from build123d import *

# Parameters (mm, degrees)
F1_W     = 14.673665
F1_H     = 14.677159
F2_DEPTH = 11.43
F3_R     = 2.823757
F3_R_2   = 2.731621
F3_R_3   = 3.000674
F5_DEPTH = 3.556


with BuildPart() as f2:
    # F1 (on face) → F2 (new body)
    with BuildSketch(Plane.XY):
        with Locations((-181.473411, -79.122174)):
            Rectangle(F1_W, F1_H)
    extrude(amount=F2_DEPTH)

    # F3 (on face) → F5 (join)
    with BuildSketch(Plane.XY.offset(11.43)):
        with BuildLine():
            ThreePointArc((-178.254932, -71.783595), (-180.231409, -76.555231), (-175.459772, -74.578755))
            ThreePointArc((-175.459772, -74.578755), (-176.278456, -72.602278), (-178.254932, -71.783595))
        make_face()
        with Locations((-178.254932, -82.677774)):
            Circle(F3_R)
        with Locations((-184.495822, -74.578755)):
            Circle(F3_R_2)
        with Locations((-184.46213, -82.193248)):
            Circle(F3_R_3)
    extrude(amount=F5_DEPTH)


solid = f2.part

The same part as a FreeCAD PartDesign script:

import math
import FreeCAD as App
import Part
import Sketcher

V = App.Vector
Q = App.Units.Quantity


def add_polygon(sketch, points):
    """Adds a closed chain of lines whose ends are joined by coincident constraints."""
    first, n = sketch.GeometryCount, len(points)
    for a, b in zip(points, points[1:] + points[:1]):
        sketch.addGeometry(Part.LineSegment(App.Vector(*a, 0), App.Vector(*b, 0)), False)
    for i in range(n):
        sketch.addConstraint(Sketcher.Constraint("Coincident", first + i, 2, first + (i + 1) % n, 1))

doc = App.newDocument("Part")
params = doc.addObject("Spreadsheet::Sheet", "Params")
for row, (alias, value) in enumerate([
    ("pad1_length", "0.45 in"),
    ("pad2_length", "0.14 in"),
], start=1):
    params.set(f"A{row}", alias)
    params.set(f"B{row}", "=" + value)
    params.setAlias(f"B{row}", alias)

body = doc.addObject("PartDesign::Body", "Body")

sketch1 = body.newObject("Sketcher::SketchObject", "Sketch")
sketch1.AttachmentSupport = (doc.getObject("XY_Plane"), [""])
sketch1.MapMode = "FlatFace"
add_polygon(sketch1, [(-189, -72), (-189, -86), (-174, -86), (-174, -72)])
sketch1.addConstraint([
    Sketcher.Constraint("Vertical", 0),
    Sketcher.Constraint("Horizontal", 1),
    Sketcher.Constraint("Vertical", 2),
    Sketcher.Constraint("Horizontal", 3),
    Sketcher.Constraint("DistanceY", 0, 2, 0, 1, Q("14.677159 mm")),
    Sketcher.Constraint("DistanceX", 1, 1, 1, 2, Q("14.673665 mm")),
    Sketcher.Constraint("DistanceX", 1, 2, -1, 1, Q("174.136579 mm")),
    Sketcher.Constraint("DistanceY", 0, 2, -1, 1, Q("86.460753 mm")),
])
pad1 = body.newObject("PartDesign::Pad", "Pad")
pad1.Profile = sketch1
pad1.setExpression("Length", "Params.pad1_length")

sketch2 = body.newObject("Sketcher::SketchObject", "Sketch001")
sketch2.AttachmentSupport = (doc.getObject("XY_Plane"), [""])
sketch2.MapMode = "FlatFace"
sketch2.AttachmentOffset = App.Placement(V(0, 0, 0.45 * 25.4), App.Rotation())
sketch2.addGeometry([
    Part.ArcOfCircle(Part.Circle(V(-178.3, -74.6, 0), V(0, 0, 1), 2.8), math.radians(90), math.radians(360)),
    Part.ArcOfCircle(Part.Circle(V(-178.3, -74.6, 0), V(0, 0, 1), 2.8), math.radians(0), math.radians(90)),
    Part.Circle(V(-178.3, -82.7, 0), V(0, 0, 1), 2.8),
    Part.Circle(V(-184.5, -74.6, 0), V(0, 0, 1), 2.7),
    Part.Circle(V(-184.5, -82.2, 0), V(0, 0, 1), 3),
], False)
sketch2.addConstraint([
    Sketcher.Constraint("Tangent", 0, 1, 1, 2),
    Sketcher.Constraint("Coincident", 1, 1, 0, 2),
    Sketcher.Constraint("Horizontal", 1, 3, 3, 3),
    Sketcher.Constraint("Horizontal", 3, 3, 1, 1),
    Sketcher.Constraint("Vertical", 1, 3, 2, 3),
    Sketcher.Constraint("Vertical", 2, 3, 0, 1),
    Sketcher.Constraint("Radius", 0, Q("2.79516 mm")),
    Sketcher.Constraint("Diameter", 2, Q("5.647514 mm")),
    Sketcher.Constraint("Diameter", 3, Q("5.463242 mm")),
    Sketcher.Constraint("Diameter", 4, Q("6.001348 mm")),
    Sketcher.Constraint("DistanceX", 4, 3, 2, 3, Q("6.207198 mm")),
    Sketcher.Constraint("DistanceX", 0, 3, -1, 1, Q("178.254932 mm")),
    Sketcher.Constraint("DistanceX", 3, 3, -1, 1, Q("184.495822 mm")),
    Sketcher.Constraint("DistanceY", 2, 3, 1, 3, Q("8.099019 mm")),
    Sketcher.Constraint("DistanceY", 0, 3, -1, 1, Q("74.578755 mm")),
    Sketcher.Constraint("DistanceY", 4, 3, -1, 1, Q("82.193248 mm")),
])
pad2 = body.newObject("PartDesign::Pad", "Pad001")
pad2.Profile = sketch2
pad2.setExpression("Length", "Params.pad2_length")

doc.recompute()
